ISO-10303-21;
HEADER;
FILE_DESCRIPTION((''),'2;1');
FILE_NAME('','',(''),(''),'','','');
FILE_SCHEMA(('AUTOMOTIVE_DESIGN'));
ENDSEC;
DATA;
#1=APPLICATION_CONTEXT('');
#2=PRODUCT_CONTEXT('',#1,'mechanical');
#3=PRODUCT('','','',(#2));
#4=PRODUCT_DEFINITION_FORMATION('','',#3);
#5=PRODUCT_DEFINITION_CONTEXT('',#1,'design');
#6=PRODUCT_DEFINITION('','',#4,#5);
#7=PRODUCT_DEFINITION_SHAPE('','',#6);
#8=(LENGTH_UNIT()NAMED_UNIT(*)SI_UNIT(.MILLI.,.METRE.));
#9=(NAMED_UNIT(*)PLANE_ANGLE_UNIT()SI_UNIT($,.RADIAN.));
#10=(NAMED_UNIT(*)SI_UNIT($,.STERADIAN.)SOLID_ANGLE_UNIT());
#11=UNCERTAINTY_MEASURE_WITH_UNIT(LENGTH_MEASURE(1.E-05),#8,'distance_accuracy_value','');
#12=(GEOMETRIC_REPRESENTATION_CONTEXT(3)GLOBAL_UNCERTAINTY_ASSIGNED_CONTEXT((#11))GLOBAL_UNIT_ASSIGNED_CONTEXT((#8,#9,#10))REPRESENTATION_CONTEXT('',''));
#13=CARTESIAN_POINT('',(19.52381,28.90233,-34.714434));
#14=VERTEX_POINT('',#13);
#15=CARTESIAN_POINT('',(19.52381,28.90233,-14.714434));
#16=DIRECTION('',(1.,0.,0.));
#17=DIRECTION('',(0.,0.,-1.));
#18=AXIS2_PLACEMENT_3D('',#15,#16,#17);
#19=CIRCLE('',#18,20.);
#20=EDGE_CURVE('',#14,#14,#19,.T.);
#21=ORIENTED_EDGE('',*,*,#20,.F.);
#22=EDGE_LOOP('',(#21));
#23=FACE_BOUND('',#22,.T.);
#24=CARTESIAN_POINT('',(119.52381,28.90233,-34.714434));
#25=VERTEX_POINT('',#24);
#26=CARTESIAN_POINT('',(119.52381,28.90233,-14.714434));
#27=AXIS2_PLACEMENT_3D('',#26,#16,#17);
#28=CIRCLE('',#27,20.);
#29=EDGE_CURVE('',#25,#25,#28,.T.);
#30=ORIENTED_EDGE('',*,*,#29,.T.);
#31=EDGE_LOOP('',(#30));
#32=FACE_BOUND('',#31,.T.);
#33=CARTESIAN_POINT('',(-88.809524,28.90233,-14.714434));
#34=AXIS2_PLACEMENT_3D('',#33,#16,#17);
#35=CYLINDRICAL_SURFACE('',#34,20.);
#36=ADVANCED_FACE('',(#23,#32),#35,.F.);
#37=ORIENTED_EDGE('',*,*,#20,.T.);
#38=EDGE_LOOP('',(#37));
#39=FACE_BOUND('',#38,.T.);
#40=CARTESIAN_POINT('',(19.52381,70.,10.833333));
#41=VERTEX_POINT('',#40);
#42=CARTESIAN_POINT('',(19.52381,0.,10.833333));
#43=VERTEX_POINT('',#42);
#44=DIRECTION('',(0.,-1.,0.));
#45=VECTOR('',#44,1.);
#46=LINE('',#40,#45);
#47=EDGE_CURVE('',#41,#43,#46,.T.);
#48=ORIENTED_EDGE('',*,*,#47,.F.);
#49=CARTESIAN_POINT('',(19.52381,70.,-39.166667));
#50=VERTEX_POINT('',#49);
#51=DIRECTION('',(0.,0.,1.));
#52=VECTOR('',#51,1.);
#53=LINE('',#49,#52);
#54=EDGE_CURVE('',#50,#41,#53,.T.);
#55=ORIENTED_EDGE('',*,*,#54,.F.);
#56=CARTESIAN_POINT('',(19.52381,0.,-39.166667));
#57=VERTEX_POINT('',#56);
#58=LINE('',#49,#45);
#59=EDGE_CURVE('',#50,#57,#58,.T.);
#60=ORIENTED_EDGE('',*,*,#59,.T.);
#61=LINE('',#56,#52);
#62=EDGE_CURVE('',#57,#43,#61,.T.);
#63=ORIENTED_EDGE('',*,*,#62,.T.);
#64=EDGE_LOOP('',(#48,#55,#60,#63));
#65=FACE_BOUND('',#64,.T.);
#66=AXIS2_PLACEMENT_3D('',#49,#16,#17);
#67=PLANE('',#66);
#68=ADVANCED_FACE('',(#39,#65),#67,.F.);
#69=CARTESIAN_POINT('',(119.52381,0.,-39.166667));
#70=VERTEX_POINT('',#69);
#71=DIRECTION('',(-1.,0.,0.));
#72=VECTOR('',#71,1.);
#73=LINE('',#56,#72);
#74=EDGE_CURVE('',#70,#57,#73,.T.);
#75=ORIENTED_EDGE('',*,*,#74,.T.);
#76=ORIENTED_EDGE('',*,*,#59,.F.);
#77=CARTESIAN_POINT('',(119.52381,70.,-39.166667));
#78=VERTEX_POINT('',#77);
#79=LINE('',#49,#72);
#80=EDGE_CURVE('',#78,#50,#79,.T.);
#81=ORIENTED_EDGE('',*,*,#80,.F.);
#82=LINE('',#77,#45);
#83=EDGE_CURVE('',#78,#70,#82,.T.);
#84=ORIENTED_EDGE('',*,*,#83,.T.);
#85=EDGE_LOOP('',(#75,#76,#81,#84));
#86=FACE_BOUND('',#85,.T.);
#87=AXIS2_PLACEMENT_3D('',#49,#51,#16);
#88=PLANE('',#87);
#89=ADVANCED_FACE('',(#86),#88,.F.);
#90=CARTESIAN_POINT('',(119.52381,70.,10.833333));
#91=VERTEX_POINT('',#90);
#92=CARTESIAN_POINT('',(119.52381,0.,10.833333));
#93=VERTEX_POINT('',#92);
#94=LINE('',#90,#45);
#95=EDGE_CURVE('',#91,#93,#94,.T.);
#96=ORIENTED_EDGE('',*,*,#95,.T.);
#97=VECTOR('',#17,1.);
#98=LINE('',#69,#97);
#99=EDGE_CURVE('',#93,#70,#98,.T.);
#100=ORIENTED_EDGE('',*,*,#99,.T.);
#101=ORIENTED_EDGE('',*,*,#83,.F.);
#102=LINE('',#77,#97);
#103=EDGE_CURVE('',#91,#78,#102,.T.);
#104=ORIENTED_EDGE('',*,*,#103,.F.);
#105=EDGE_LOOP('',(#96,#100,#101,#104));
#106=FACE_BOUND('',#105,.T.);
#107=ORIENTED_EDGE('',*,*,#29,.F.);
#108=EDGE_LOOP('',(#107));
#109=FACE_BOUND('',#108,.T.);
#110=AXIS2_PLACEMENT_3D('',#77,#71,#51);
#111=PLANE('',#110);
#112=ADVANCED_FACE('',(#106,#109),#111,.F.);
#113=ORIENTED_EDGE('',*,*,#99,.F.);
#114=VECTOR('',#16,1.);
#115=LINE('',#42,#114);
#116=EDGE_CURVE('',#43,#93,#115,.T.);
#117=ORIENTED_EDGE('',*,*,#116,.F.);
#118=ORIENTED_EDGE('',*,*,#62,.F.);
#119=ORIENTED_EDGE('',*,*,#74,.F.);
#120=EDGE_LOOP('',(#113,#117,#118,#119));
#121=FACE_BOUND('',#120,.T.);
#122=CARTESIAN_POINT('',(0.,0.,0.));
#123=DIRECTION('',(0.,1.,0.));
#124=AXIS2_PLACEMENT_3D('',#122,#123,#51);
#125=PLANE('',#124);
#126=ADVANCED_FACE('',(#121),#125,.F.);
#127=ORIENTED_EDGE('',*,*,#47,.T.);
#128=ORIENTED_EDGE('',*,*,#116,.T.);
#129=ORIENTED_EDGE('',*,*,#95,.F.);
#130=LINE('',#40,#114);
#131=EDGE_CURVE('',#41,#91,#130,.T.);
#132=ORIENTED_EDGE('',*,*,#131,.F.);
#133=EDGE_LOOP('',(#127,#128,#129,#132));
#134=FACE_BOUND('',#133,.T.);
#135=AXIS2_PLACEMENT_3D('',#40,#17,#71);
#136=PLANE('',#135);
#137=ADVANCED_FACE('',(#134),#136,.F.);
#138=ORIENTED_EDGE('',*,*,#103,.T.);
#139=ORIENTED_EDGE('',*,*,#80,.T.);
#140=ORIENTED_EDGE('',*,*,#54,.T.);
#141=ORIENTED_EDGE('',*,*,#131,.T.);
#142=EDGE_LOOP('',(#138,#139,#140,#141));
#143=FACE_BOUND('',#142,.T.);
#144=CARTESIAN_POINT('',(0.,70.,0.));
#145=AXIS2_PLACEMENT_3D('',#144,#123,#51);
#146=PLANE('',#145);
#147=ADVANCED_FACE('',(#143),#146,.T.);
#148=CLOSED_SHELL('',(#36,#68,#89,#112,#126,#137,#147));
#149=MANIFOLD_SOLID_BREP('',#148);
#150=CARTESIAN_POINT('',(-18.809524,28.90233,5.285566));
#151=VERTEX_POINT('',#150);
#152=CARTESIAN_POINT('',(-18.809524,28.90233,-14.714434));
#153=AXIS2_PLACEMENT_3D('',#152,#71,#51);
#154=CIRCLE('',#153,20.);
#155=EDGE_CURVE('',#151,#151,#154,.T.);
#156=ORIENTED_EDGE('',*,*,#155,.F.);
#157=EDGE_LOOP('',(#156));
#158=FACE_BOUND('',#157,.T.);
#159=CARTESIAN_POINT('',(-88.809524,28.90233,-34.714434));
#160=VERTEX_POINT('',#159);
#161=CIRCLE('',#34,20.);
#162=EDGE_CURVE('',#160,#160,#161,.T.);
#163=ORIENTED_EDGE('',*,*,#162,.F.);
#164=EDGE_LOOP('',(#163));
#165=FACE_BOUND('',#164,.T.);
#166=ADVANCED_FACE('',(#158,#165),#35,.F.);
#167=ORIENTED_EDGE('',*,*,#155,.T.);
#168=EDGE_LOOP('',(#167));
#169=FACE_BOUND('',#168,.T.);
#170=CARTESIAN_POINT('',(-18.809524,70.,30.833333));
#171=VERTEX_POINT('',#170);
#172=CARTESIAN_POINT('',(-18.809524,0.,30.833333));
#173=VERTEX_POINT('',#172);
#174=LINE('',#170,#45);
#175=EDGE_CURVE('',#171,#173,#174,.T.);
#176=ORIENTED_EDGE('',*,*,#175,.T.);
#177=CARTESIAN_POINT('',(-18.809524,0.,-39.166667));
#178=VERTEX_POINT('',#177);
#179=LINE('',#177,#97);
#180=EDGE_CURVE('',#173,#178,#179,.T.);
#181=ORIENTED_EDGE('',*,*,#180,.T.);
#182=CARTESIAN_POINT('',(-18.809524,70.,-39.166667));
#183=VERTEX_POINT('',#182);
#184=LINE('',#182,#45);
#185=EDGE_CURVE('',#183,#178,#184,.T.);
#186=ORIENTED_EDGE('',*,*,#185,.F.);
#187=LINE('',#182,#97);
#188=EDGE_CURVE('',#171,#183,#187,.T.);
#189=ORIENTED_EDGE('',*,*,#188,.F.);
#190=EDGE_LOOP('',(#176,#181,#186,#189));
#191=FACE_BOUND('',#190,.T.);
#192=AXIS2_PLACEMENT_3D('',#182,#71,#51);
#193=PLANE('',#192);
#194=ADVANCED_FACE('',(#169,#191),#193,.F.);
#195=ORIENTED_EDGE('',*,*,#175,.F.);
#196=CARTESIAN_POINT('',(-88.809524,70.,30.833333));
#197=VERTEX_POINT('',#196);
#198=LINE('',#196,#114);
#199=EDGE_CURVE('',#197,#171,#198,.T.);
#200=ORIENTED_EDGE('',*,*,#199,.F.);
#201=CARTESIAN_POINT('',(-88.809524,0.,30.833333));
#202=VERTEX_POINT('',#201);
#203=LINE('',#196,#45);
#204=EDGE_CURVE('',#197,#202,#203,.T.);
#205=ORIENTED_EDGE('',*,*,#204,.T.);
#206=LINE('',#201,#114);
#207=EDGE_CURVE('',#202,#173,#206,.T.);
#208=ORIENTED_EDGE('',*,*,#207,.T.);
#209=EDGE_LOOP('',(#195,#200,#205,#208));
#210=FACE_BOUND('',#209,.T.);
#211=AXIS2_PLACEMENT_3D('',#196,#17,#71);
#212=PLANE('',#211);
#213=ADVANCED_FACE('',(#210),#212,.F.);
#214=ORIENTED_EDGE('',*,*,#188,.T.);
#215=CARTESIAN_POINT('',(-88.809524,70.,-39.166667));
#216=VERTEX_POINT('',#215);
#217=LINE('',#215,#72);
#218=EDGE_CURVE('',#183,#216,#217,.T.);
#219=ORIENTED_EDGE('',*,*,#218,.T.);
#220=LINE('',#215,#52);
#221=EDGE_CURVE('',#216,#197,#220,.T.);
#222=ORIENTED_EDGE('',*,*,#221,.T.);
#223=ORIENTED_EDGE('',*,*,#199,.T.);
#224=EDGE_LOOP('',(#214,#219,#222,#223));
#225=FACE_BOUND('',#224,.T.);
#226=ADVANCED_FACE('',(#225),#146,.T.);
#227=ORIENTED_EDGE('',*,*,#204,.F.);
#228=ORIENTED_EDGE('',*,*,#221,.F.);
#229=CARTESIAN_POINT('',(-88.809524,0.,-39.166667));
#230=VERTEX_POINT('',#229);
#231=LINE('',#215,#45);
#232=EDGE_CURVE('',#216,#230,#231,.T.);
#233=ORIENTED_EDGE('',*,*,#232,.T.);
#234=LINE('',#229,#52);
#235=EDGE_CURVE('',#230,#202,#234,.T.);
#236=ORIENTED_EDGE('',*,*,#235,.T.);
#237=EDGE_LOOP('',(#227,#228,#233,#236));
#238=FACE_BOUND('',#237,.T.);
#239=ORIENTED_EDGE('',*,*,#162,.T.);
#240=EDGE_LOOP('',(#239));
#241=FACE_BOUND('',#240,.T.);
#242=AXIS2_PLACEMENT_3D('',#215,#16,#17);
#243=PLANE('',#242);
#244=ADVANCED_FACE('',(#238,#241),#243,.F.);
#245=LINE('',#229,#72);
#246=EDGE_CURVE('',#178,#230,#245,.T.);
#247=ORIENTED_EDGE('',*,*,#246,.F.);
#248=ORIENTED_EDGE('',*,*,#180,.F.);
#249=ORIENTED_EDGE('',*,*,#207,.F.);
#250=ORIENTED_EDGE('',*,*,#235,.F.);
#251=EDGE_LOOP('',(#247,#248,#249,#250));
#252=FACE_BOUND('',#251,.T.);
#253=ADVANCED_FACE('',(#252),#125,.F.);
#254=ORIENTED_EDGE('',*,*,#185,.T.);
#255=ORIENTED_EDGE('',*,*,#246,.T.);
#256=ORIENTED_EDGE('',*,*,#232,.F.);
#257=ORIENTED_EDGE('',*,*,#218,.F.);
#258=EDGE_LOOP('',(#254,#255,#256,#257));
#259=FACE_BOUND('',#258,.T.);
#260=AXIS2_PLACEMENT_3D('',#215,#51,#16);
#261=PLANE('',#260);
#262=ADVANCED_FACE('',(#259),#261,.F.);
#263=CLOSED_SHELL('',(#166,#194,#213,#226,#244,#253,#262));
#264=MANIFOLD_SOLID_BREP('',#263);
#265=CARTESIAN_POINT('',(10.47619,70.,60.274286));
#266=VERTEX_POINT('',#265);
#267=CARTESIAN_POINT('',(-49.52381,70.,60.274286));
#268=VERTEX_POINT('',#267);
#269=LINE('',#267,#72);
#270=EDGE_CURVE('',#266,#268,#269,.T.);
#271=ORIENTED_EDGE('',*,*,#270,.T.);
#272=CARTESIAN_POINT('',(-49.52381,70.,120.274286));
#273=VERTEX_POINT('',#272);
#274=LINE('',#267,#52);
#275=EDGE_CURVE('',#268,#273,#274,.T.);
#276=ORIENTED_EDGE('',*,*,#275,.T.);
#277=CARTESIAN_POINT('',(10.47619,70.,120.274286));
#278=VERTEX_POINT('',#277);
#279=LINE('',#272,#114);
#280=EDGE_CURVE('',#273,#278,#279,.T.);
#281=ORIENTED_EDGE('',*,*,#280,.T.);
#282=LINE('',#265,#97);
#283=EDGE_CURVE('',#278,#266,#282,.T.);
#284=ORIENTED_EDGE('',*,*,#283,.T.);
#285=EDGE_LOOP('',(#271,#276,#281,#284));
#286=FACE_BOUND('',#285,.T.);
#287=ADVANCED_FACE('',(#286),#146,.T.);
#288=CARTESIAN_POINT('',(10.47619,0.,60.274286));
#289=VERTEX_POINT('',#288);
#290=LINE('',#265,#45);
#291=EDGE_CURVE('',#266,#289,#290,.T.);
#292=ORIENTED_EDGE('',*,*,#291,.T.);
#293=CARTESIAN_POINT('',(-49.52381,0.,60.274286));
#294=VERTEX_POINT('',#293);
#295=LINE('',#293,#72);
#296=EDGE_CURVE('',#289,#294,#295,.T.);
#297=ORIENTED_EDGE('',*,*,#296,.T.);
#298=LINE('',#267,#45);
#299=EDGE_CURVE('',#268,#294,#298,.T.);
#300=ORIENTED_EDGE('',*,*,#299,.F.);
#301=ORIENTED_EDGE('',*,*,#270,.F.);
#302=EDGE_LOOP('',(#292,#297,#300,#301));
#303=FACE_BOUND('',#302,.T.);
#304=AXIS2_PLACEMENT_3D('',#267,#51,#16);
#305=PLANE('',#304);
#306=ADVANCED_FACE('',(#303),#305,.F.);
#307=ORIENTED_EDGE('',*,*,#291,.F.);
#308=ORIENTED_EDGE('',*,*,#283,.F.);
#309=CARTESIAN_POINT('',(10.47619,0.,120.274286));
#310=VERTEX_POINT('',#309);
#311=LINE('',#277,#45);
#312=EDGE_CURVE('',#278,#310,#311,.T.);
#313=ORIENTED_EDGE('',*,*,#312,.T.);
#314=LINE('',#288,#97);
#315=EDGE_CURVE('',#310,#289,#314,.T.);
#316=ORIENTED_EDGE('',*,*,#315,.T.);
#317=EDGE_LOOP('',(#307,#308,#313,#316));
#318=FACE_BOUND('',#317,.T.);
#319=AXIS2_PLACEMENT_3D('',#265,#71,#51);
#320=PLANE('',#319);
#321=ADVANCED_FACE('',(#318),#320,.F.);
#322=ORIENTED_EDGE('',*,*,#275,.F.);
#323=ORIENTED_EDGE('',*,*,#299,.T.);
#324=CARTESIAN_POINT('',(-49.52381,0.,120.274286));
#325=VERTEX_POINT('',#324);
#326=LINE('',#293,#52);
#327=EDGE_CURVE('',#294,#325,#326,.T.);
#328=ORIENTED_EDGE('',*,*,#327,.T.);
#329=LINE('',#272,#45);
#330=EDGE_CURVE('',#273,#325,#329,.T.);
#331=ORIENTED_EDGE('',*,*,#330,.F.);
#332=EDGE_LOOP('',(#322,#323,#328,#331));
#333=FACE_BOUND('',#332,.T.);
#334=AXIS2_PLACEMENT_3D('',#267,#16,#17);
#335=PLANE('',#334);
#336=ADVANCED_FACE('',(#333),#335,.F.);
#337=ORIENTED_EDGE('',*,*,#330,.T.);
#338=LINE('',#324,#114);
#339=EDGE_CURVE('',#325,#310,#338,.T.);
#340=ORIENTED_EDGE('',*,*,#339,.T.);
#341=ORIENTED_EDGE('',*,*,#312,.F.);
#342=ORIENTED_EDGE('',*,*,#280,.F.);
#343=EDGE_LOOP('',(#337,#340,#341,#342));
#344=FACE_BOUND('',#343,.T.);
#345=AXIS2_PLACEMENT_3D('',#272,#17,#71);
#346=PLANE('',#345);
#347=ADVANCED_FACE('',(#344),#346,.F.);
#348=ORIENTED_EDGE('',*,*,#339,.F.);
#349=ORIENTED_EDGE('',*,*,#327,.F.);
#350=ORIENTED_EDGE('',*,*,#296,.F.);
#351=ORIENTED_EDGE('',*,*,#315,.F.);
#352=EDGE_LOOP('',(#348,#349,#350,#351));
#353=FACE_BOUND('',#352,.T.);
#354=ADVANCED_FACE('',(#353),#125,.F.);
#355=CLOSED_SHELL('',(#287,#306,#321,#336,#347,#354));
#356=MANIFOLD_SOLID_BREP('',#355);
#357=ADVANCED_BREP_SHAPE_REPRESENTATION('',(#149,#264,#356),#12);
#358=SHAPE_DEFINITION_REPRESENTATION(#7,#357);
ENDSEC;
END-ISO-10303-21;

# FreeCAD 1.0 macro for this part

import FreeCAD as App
import Part
import Sketcher
from FreeCAD import Vector


def add_polygon(sketch, points):
    """Adds a closed chain of lines whose ends are joined by coincident constraints."""
    first, n = sketch.GeometryCount, len(points)
    for a, b in zip(points, points[1:] + points[:1]):
        sketch.addGeometry(Part.LineSegment(App.Vector(*a, 0), App.Vector(*b, 0)), False)
    for i in range(n):
        sketch.addConstraint(Sketcher.Constraint("Coincident", first + i, 2, first + (i + 1) % n, 1))

doc = App.newDocument("Part")
body = doc.addObject("PartDesign::Body", "Body")

# Sketch on XZ plane
sketch1 = body.newObject("Sketcher::SketchObject", "Sketch")
sketch1.AttachmentSupport = (doc.getObject("XZ_Plane"), [""])
sketch1.MapMode = "FlatFace"
add_polygon(sketch1, [(-89, -39), (-89, 31), (-19, 31), (-19, -39)])  # lines 0-3
sketch1.addConstraint([
    Sketcher.Constraint("Vertical", 0),
    Sketcher.Constraint("Horizontal", 1),
    Sketcher.Constraint("Vertical", 2),
    Sketcher.Constraint("Horizontal", 3),
    Sketcher.Constraint("Equal", 3, 0),
    Sketcher.Constraint("DistanceX", 1, 1, 1, 2, 70.0),
    Sketcher.Constraint("DistanceX", 0, 2, -1, 1, 88.809524),
    Sketcher.Constraint("DistanceY", -1, 1, 0, 2, 30.833333),
])
pad1 = body.newObject("PartDesign::Pad", "Pad")
pad1.Profile = sketch1
pad1.Length = 70
pad1.Reversed = True
body2 = doc.addObject("PartDesign::Body", "Body001")

# Sketch on XZ plane
sketch2 = body2.newObject("Sketcher::SketchObject", "Sketch001")
sketch2.AttachmentSupport = (doc.getObject("XZ_Plane001"), [""])
sketch2.MapMode = "FlatFace"
add_polygon(sketch2, [(20, -39), (20, 11), (120, 11), (120, -39)])  # lines 0-3
sketch2.addConstraint([
    Sketcher.Constraint("Vertical", 0),
    Sketcher.Constraint("Horizontal", 1),
    Sketcher.Constraint("Vertical", 2),
    Sketcher.Constraint("Horizontal", 3),
    Sketcher.Constraint("DistanceX", 1, 1, 1, 2, 100.0),
    Sketcher.Constraint("DistanceY", 0, 1, 0, 2, 50.0),
    Sketcher.Constraint("DistanceX", -1, 1, 0, 2, 19.52381),
    Sketcher.Constraint("DistanceY", -1, 1, 0, 2, 10.833333),
])
pad2 = body2.newObject("PartDesign::Pad", "Pad001")
pad2.Profile = sketch2
pad2.Length = 70
pad2.Reversed = True
body3 = doc.addObject("PartDesign::Body", "Body002")

# Sketch on XZ plane
sketch3 = body3.newObject("Sketcher::SketchObject", "Sketch002")
sketch3.AttachmentSupport = (doc.getObject("XZ_Plane002"), [""])
sketch3.MapMode = "FlatFace"
add_polygon(sketch3, [(-50, 60), (-50, 120), (10, 120), (10, 60)])  # lines 0-3
sketch3.addConstraint([
    Sketcher.Constraint("Vertical", 0),
    Sketcher.Constraint("Horizontal", 1),
    Sketcher.Constraint("Vertical", 2),
    Sketcher.Constraint("Horizontal", 3),
    Sketcher.Constraint("Equal", 3, 0),
    Sketcher.Constraint("DistanceX", 1, 1, 1, 2, 60.0),
    Sketcher.Constraint("DistanceX", 0, 2, -1, 1, 49.52381),
    Sketcher.Constraint("DistanceY", -1, 1, 0, 2, 120.274286),
])
pad3 = body3.newObject("PartDesign::Pad", "Pad002")
pad3.Profile = sketch3
pad3.Length = 70
pad3.Reversed = True
body4 = doc.addObject("PartDesign::Body", "Body003")

# Sketch on YZ plane
sketch4 = body4.newObject("Sketcher::SketchObject", "Sketch003")
sketch4.AttachmentSupport = (doc.getObject("YZ_Plane003"), [""])
sketch4.MapMode = "FlatFace"
sketch4.AttachmentOffset = App.Placement(Vector(0, 0, 119.52381), App.Rotation())
sketch4.addGeometry(Part.Circle(Vector(29, -15, 0), Vector(0, 0, 1), 20), False)
sketch4.addConstraint([
    Sketcher.Constraint("Diameter", 0, 40.0),
    Sketcher.Constraint("DistanceX", -1, 1, 0, 3, 28.90233),
    Sketcher.Constraint("DistanceY", 0, 3, -1, 1, 14.714434),
])
pad4 = body4.newObject("PartDesign::Pad", "Pad003")
pad4.Profile = sketch4
pad4.Length = 251.536787
pad4.Reversed = True
doc.recompute()

body5 = doc.addObject("PartDesign::Body", "Body004")
body5.BaseFeature = body4
boolean = body.newObject("PartDesign::Boolean", "Boolean")
boolean.Type = "Cut"
boolean.addObjects([body5])
doc.recompute()

boolean2 = body2.newObject("PartDesign::Boolean", "Boolean001")
boolean2.Type = "Cut"
boolean2.addObjects([body4])

doc.recompute()
